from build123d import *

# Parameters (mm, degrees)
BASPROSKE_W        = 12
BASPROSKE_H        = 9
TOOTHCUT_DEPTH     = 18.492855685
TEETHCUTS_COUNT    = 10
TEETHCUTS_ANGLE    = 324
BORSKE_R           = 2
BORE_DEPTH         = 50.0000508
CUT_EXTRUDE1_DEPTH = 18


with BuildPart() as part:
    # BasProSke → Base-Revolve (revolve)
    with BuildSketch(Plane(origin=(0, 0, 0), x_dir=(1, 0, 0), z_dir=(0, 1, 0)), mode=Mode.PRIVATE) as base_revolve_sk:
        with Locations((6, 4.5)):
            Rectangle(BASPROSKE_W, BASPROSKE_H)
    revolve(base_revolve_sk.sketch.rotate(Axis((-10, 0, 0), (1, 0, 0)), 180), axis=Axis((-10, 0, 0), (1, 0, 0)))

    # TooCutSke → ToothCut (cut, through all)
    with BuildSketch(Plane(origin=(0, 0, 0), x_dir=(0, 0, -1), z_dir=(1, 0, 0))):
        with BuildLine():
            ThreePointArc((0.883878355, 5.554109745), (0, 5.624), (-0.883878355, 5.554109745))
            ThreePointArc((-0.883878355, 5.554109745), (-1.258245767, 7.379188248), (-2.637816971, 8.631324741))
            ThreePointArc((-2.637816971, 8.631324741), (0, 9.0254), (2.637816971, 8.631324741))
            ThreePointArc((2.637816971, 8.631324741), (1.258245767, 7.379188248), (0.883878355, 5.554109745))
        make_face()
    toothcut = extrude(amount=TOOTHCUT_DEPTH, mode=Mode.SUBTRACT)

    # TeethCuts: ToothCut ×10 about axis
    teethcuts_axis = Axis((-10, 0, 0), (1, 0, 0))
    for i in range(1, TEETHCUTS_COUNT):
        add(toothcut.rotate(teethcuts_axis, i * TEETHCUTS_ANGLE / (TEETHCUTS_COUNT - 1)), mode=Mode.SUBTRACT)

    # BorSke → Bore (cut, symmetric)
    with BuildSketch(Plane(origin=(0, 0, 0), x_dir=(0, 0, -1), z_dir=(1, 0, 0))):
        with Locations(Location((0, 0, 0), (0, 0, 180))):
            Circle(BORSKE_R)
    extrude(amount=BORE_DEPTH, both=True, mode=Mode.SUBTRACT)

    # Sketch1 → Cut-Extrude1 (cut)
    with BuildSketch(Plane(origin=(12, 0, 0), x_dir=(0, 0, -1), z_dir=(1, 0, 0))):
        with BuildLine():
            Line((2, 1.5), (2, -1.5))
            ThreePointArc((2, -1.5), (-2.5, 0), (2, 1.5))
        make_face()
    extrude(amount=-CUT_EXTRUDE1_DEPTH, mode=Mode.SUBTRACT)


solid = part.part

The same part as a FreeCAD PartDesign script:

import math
import FreeCAD as App
import Part
import Sketcher
Q = App.Units.Quantity


def add_polygon(sketch, points):
    """Adds a closed chain of lines whose ends are joined by coincident constraints."""
    first, n = sketch.GeometryCount, len(points)
    for a, b in zip(points, points[1:] + points[:1]):
        sketch.addGeometry(Part.LineSegment(App.Vector(*a, 0), App.Vector(*b, 0)), False)
    for i in range(n):
        sketch.addConstraint(Sketcher.Constraint("Coincident", first + i, 2, first + (i + 1) % n, 1))

doc = App.newDocument("Part")
body = doc.addObject("PartDesign::Body", "Body")

# Sketch on XZ plane
sketch1 = body.newObject("Sketcher::SketchObject", "Sketch")
sketch1.AttachmentSupport = (doc.getObject("XZ_Plane"), [""])
sketch1.MapMode = "FlatFace"
add_polygon(sketch1, [(0, -9), (0, 0), (12, 0), (12, -9)])  # lines 0-3
sketch1.addConstraint(Sketcher.Constraint("Vertical", 0))
sketch1.addConstraint(Sketcher.Constraint("Horizontal", 1))
sketch1.addConstraint(Sketcher.Constraint("Vertical", 2))
sketch1.addConstraint(Sketcher.Constraint("Horizontal", 3))
sketch1.addConstraint(Sketcher.Constraint("Coincident", 0, 2, -1, 1))
sketch1.addConstraint(Sketcher.Constraint("DistanceX", 1, 1, 1, 2, Q("12 mm")))
sketch1.addConstraint(Sketcher.Constraint("DistanceY", 0, 1, 0, 2, Q("9 mm")))
revolution = body.newObject("PartDesign::Revolution", "Revolution")
revolution.Profile = sketch1
revolution.ReferenceAxis = (sketch1, ["H_Axis"])
revolution.Angle = 360

# Sketch on YZ plane
sketch2 = body.newObject("Sketcher::SketchObject", "Sketch001")
sketch2.AttachmentSupport = (doc.getObject("YZ_Plane"), [""])
sketch2.MapMode = "FlatFace"
sketch2.addGeometry(Part.ArcOfCircle(Part.Circle(App.Vector(0, 0, 0), App.Vector(0, 0, 1), 5.624), math.radians(-9.042199), math.radians(9.042199)), False)
sketch2.addGeometry(Part.ArcOfCircle(Part.Circle(App.Vector(5.893626, -3.864605, 0), App.Vector(0, 0, 1), 3), math.radians(24.137585), math.radians(96.498212)), False)
sketch2.addGeometry(Part.ArcOfCircle(Part.Circle(App.Vector(0, 0, 0), App.Vector(0, 0, 1), 9.0254), math.radians(-16.993663), math.radians(16.993663)), False)
sketch2.addGeometry(Part.ArcOfCircle(Part.Circle(App.Vector(5.893626, 3.864605, 0), App.Vector(0, 0, 1), 3), math.radians(-96.498212), math.radians(-24.137585)), False)
sketch2.addConstraint(Sketcher.Constraint("Coincident", 0, 1, 1, 2))
sketch2.addConstraint(Sketcher.Constraint("Coincident", 1, 1, 2, 1))
sketch2.addConstraint(Sketcher.Constraint("Coincident", 2, 2, 3, 2))
sketch2.addConstraint(Sketcher.Constraint("Coincident", 3, 1, 0, 2))
sketch2.addConstraint(Sketcher.Constraint("Coincident", 0, 3, -1, 1))
sketch2.addConstraint(Sketcher.Constraint("Coincident", 2, 3, -1, 1))
sketch2.addConstraint(Sketcher.Constraint("Equal", 1, 3))
sketch2.addConstraint(Sketcher.Constraint("Symmetric", 1, 3, 3, 3, -1))
sketch2.addConstraint(Sketcher.Constraint("Radius", 1, Q("3 mm")))
sketch2.addConstraint(Sketcher.Constraint("Radius", 0, Q("5.624 mm")))
sketch2.addConstraint(Sketcher.Constraint("Radius", 2, Q("9.0254 mm")))
sketch2.addConstraint(Sketcher.Constraint("DistanceX", 1, 3, 1, 1, Q("2.737698 mm")))
sketch2.addConstraint(Sketcher.Constraint("DistanceX", -1, 1, 0, 1, Q("5.55411 mm")))
pocket1 = body.newObject("PartDesign::Pocket", "Pocket")
pocket1.Profile = sketch2
pocket1.Type = "ThroughAll"
pocket1.Reversed = True
doc.recompute()

polarpattern = body.newObject("PartDesign::PolarPattern", "PolarPattern")
polarpattern.Originals = [pocket1]
polarpattern.Axis = (doc.getObject("X_Axis"), [""])
polarpattern.Angle = 360
polarpattern.Occurrences = 10
body.Tip = polarpattern

# Sketch on YZ plane
sketch3 = body.newObject("Sketcher::SketchObject", "Sketch002")
sketch3.AttachmentSupport = (doc.getObject("YZ_Plane"), [""])
sketch3.MapMode = "FlatFace"
sketch3.addGeometry(Part.Circle(App.Vector(0, 0, 0), App.Vector(0, 0, 1), 2), False)
sketch3.addConstraint(Sketcher.Constraint("Coincident", 0, 3, -1, 1))
sketch3.addConstraint(Sketcher.Constraint("Diameter", 0, Q("4 mm")))
pocket2 = body.newObject("PartDesign::Pocket", "Pocket001")
pocket2.Profile = sketch3
pocket2.Length = 100.000102
pocket2.Midplane = True

# Sketch on YZ plane
sketch4 = body.newObject("Sketcher::SketchObject", "Sketch003")
sketch4.AttachmentSupport = (doc.getObject("YZ_Plane"), [""])
sketch4.MapMode = "FlatFace"
sketch4.AttachmentOffset = App.Placement(App.Vector(0, 0, 12), App.Rotation())
sketch4.addGeometry(Part.LineSegment(App.Vector(-1.5, -2, 0), App.Vector(1.5, -2, 0)), False)
sketch4.addGeometry(Part.ArcOfCircle(Part.Circle(App.Vector(0, 0, 0), App.Vector(0, 0, 1), 2.5), math.radians(-53.130102), math.radians(233.130102)), False)
sketch4.addConstraint(Sketcher.Constraint("Coincident", 0, 1, 1, 2))
sketch4.addConstraint(Sketcher.Constraint("Coincident", 1, 1, 0, 2))
sketch4.addConstraint(Sketcher.Constraint("Horizontal", 0))
sketch4.addConstraint(Sketcher.Constraint("Coincident", 1, 3, -1, 1))
sketch4.addConstraint(Sketcher.Constraint("Radius", 1, Q("2.5 mm")))
sketch4.addConstraint(Sketcher.Constraint("DistanceX", 0, 1, 0, 2, Q("3 mm")))
pocket3 = body.newObject("PartDesign::Pocket", "Pocket002")
pocket3.Profile = sketch4
pocket3.Length = 18

doc.recompute()
